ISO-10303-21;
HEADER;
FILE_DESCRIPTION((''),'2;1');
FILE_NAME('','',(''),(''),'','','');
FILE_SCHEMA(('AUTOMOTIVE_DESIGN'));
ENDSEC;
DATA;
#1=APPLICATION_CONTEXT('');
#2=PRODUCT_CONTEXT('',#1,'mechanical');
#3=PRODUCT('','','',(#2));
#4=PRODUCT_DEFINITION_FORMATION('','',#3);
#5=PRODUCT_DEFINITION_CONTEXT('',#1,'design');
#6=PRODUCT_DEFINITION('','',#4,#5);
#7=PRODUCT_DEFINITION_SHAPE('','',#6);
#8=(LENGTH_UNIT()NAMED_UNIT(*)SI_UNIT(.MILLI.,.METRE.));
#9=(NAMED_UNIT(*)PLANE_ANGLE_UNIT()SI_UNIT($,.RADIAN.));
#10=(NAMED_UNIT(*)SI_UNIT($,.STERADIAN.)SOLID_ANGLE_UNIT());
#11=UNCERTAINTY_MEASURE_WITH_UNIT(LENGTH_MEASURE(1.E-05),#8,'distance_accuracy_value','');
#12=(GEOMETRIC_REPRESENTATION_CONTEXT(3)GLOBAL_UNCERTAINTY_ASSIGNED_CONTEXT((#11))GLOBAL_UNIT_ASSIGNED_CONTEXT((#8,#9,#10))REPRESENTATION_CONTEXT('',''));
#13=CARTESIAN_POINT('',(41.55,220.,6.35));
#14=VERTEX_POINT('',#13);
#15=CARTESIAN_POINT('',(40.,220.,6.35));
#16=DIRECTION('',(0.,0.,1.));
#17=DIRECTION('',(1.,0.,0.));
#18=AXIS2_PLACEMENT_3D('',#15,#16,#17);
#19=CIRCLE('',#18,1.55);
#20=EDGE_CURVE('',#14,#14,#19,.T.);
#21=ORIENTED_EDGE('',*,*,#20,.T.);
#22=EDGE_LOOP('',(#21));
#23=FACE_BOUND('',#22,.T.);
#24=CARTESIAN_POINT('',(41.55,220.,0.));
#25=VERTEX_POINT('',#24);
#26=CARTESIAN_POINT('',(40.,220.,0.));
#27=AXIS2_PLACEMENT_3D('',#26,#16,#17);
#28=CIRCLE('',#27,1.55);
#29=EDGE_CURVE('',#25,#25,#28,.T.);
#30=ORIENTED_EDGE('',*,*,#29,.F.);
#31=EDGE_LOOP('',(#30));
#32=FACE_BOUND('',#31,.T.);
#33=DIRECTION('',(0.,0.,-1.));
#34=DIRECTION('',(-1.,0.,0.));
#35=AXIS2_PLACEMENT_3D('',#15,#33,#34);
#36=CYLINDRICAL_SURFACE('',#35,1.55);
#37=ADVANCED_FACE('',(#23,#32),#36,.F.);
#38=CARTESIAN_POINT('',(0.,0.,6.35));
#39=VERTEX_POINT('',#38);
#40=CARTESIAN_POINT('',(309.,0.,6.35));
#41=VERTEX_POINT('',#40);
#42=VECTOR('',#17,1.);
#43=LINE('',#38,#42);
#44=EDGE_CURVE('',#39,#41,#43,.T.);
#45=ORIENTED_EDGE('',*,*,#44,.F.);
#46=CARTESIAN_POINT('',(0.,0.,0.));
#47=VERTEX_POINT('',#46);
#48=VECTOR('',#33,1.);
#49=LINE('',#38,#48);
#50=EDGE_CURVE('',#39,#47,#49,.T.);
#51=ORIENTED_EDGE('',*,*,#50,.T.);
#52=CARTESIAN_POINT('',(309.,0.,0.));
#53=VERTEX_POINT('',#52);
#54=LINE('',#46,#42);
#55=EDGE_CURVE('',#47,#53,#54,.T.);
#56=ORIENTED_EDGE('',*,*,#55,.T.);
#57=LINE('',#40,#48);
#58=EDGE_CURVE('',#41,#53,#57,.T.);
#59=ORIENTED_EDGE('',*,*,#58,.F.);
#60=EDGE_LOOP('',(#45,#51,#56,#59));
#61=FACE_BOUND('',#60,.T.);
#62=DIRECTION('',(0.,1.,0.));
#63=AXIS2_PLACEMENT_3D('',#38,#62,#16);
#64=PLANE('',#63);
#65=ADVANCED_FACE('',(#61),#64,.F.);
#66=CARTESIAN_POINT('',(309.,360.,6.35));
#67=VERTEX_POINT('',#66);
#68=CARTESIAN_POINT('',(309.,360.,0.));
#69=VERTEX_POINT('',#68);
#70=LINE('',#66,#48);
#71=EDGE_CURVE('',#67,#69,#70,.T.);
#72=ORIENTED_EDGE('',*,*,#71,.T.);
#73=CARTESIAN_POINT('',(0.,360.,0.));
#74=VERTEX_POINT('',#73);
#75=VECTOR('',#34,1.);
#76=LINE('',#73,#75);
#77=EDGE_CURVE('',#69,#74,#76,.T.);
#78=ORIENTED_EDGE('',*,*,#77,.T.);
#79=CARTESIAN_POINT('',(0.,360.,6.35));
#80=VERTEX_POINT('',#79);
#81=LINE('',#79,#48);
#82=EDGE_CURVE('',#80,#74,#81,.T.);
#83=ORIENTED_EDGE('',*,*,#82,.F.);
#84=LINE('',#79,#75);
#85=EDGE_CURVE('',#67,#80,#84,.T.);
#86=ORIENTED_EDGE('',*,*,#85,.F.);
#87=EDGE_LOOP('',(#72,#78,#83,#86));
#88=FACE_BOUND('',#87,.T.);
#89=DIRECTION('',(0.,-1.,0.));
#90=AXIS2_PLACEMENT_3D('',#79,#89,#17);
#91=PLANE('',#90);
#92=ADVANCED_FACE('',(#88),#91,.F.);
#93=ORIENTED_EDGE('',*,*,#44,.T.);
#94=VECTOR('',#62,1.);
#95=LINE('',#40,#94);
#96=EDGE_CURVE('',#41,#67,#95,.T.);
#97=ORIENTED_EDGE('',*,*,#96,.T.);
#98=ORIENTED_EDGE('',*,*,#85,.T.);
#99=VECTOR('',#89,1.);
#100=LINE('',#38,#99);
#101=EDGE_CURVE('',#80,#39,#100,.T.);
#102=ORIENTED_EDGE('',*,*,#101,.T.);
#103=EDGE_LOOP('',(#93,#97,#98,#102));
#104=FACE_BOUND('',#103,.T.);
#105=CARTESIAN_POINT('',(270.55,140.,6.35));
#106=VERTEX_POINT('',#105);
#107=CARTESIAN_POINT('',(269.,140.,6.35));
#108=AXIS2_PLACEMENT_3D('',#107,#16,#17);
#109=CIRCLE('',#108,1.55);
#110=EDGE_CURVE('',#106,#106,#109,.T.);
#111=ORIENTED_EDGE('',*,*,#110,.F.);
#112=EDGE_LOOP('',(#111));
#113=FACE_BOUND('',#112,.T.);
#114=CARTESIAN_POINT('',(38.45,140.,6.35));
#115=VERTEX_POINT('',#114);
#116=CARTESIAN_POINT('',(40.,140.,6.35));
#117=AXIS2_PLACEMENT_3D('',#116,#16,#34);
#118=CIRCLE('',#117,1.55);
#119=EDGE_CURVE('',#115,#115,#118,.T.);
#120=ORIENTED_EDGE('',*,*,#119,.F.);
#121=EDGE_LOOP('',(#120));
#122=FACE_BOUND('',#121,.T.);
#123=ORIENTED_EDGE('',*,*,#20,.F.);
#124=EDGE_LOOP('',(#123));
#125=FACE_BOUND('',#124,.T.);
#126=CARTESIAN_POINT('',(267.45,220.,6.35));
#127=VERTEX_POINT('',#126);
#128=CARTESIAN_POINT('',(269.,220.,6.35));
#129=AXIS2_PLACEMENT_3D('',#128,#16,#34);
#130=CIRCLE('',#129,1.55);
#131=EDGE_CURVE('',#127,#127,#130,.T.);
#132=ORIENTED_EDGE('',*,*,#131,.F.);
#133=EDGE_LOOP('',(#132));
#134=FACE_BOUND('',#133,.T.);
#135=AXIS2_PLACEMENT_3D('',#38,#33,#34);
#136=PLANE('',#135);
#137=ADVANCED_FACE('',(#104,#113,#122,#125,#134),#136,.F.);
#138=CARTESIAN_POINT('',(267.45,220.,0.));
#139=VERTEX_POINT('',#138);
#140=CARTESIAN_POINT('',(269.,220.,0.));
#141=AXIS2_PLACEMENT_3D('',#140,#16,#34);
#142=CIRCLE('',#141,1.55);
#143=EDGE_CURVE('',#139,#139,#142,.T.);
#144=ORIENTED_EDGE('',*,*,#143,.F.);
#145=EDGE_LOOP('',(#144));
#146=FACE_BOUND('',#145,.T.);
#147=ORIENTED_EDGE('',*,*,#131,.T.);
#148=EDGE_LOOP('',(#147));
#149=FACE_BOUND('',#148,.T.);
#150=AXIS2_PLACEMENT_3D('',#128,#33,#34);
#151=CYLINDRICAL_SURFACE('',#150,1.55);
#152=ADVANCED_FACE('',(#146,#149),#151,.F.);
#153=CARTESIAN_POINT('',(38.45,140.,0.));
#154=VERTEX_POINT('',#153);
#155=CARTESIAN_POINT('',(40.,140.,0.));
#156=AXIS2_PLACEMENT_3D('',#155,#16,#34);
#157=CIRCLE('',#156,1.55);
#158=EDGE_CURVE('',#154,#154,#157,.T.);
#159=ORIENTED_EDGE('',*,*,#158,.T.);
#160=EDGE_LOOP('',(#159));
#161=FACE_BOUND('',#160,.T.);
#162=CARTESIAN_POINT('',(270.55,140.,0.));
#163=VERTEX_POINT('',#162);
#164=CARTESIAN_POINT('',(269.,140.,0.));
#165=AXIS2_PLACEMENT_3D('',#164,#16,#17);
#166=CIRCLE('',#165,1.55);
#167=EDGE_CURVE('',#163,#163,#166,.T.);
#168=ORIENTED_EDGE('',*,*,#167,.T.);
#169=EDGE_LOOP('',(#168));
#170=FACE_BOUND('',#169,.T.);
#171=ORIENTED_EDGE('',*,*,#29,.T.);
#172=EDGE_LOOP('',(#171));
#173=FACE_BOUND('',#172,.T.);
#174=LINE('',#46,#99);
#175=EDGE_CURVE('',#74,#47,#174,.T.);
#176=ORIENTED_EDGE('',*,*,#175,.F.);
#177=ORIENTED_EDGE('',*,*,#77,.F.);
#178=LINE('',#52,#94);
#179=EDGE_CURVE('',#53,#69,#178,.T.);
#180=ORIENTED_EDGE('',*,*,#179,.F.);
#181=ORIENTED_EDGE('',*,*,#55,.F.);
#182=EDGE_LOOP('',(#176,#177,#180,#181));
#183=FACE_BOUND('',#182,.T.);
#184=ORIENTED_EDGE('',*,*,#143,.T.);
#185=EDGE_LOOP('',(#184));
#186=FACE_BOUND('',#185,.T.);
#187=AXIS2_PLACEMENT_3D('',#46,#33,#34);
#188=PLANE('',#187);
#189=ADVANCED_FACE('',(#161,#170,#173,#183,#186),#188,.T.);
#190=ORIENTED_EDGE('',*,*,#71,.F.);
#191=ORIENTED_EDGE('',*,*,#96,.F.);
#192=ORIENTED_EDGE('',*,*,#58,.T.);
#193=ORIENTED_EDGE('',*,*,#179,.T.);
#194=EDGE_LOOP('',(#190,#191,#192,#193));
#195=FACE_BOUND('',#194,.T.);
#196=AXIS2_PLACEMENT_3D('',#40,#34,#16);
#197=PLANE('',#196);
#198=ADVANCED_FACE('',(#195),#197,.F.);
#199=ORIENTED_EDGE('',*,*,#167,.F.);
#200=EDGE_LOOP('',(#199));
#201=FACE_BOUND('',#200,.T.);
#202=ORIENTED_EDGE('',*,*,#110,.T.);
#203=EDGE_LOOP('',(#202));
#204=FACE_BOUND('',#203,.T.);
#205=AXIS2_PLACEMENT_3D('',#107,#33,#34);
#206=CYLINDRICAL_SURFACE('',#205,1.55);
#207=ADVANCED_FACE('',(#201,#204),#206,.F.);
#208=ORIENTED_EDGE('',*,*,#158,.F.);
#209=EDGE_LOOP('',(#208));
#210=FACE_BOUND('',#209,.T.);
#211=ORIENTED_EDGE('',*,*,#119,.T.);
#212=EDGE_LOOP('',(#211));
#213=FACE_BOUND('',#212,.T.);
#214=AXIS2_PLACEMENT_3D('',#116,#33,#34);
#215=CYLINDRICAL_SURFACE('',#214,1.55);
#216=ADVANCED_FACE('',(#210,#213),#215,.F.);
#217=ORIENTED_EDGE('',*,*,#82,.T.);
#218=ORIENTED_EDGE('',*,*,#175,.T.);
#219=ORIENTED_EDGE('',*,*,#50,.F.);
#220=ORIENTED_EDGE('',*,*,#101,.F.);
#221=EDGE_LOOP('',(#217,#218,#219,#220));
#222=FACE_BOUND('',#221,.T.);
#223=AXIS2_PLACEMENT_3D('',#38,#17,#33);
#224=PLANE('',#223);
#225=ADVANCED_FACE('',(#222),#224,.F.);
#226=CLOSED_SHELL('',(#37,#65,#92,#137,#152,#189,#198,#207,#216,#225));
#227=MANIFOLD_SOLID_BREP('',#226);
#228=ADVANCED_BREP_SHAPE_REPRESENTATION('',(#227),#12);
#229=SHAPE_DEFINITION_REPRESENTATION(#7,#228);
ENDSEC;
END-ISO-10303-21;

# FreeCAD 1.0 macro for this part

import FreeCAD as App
import Part
import Sketcher
from FreeCAD import Vector

doc = App.newDocument("Part")
body = doc.addObject("PartDesign::Body", "Body")

# Sketch on XY plane
sketch1 = doc.addObject("Sketcher::SketchObject", "Sketch")
body.addObject(sketch1)
sketch1.AttachmentSupport = (doc.XY_Plane, [""])
sketch1.MapMode = "FlatFace"
sketch1.addGeometry([
    Part.LineSegment(Vector(0, 360, 0), Vector(0, 0, 0)),  # 0
    Part.LineSegment(Vector(0, 0, 0), Vector(309, 0, 0)),  # 1
    Part.LineSegment(Vector(309, 0, 0), Vector(309, 360, 0)),  # 2
    Part.LineSegment(Vector(309, 360, 0), Vector(0, 360, 0)),  # 3
    Part.Circle(Vector(40, 140, 0), Vector(0, 0, 1), 1.6),  # 4
    Part.Circle(Vector(269, 140, 0), Vector(0, 0, 1), 1.6),  # 5
    Part.Circle(Vector(40, 220, 0), Vector(0, 0, 1), 1.6),  # 6
    Part.Circle(Vector(269, 220, 0), Vector(0, 0, 1), 1.6),  # 7
], False)
sketch1.addConstraint([
    Sketcher.Constraint("Coincident", 0, 2, 1, 1),
    Sketcher.Constraint("Coincident", 1, 2, 2, 1),
    Sketcher.Constraint("Coincident", 2, 2, 3, 1),
    Sketcher.Constraint("Coincident", 3, 2, 0, 1),
    Sketcher.Constraint("Vertical", 0),
    Sketcher.Constraint("Horizontal", 1),
    Sketcher.Constraint("Vertical", 2),
    Sketcher.Constraint("Horizontal", 3),
    Sketcher.Constraint("Coincident", 0, 2, -1, 1),
    Sketcher.Constraint("Equal", 4, 5),
    Sketcher.Constraint("Equal", 5, 6),
    Sketcher.Constraint("Equal", 6, 7),
    Sketcher.Constraint("Horizontal", 4, 3, 5, 3),
    Sketcher.Constraint("Horizontal", 6, 3, 7, 3),
    Sketcher.Constraint("Vertical", 4, 3, 6, 3),
    Sketcher.Constraint("Vertical", 5, 3, 7, 3),
    Sketcher.Constraint("Diameter", 4, 3.1),
    Sketcher.Constraint("DistanceX", 1, 1, 1, 2, 309.0),
    Sketcher.Constraint("DistanceY", 0, 2, 0, 1, 360.0),
    Sketcher.Constraint("DistanceX", -1, 1, 4, 3, 40.0),
    Sketcher.Constraint("DistanceY", -1, 1, 4, 3, 140.0),
    Sketcher.Constraint("DistanceX", -1, 1, 5, 3, 269.0),
    Sketcher.Constraint("DistanceY", -1, 1, 6, 3, 220.0),
])
pad1 = doc.addObject("PartDesign::Pad", "Pad")
body.addObject(pad1)
pad1.Profile = sketch1
pad1.Length = 6.35

doc.recompute()
